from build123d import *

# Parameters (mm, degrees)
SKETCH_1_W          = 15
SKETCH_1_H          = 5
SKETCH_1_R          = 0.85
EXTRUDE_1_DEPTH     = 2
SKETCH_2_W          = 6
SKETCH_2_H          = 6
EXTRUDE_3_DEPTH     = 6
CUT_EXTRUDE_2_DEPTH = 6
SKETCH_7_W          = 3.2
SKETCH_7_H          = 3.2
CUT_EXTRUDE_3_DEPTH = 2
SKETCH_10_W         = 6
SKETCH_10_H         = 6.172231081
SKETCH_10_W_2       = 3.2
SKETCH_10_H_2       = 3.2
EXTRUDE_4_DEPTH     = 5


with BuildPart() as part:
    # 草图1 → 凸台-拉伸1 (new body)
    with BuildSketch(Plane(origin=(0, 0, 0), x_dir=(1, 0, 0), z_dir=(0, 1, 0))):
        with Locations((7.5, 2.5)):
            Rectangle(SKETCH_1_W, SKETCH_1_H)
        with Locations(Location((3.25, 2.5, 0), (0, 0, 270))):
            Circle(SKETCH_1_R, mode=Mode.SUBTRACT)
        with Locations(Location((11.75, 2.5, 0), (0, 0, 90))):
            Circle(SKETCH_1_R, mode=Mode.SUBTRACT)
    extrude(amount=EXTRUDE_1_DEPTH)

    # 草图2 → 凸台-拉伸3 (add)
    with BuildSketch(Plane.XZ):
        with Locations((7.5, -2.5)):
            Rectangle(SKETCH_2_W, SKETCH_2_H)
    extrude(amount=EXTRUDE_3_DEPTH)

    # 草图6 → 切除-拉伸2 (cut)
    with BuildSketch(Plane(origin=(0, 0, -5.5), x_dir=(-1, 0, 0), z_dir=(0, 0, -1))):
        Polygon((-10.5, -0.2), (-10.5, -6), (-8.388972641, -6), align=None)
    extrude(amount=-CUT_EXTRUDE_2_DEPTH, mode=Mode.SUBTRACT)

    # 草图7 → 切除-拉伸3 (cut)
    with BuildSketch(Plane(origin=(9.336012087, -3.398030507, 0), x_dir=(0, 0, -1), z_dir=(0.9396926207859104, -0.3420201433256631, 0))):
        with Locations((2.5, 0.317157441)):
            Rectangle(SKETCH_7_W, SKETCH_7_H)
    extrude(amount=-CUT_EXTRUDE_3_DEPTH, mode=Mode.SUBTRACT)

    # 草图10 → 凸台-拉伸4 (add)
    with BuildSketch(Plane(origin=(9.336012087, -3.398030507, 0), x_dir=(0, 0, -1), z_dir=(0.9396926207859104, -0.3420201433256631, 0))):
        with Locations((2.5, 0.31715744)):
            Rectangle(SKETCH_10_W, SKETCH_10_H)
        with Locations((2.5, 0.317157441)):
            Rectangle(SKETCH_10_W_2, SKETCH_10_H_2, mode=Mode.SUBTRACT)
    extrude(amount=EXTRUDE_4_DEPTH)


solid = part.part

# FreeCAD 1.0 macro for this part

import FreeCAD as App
import Part
import Sketcher
from FreeCAD import Vector
Q = App.Units.Quantity

doc = App.newDocument("Part")
body = doc.addObject("PartDesign::Body", "Body")

# Sketch on XZ plane
sketch1 = body.newObject("Sketcher::SketchObject", "Sketch")
sketch1.AttachmentSupport = (doc.getObject("XZ_Plane"), [""])
sketch1.MapMode = "FlatFace"
sketch1.addGeometry(Part.LineSegment(Vector(0, -5, 0), Vector(0, 0, 0)), False)
sketch1.addGeometry(Part.LineSegment(Vector(0, 0, 0), Vector(15, 0, 0)), False)
sketch1.addGeometry(Part.LineSegment(Vector(15, 0, 0), Vector(15, -5, 0)), False)
sketch1.addGeometry(Part.LineSegment(Vector(15, -5, 0), Vector(0, -5, 0)), False)
sketch1.addGeometry(Part.Circle(Vector(3.25, -2.5, 0), Vector(0, 0, 1), 0.85), False)
sketch1.addGeometry(Part.Circle(Vector(11.75, -2.5, 0), Vector(0, 0, 1), 0.85), False)
sketch1.addConstraint(Sketcher.Constraint("Coincident", 0, 2, 1, 1))
sketch1.addConstraint(Sketcher.Constraint("Coincident", 1, 2, 2, 1))
sketch1.addConstraint(Sketcher.Constraint("Coincident", 2, 2, 3, 1))
sketch1.addConstraint(Sketcher.Constraint("Coincident", 3, 2, 0, 1))
sketch1.addConstraint(Sketcher.Constraint("Vertical", 0))
sketch1.addConstraint(Sketcher.Constraint("Horizontal", 1))
sketch1.addConstraint(Sketcher.Constraint("Vertical", 2))
sketch1.addConstraint(Sketcher.Constraint("Horizontal", 3))
sketch1.addConstraint(Sketcher.Constraint("Coincident", 0, 2, -1, 1))
sketch1.addConstraint(Sketcher.Constraint("Equal", 4, 5))
sketch1.addConstraint(Sketcher.Constraint("Horizontal", 4, 3, 5, 3))
sketch1.addConstraint(Sketcher.Constraint("Diameter", 4, Q("1.7 mm")))
sketch1.addConstraint(Sketcher.Constraint("DistanceX", 1, 1, 1, 2, Q("15 mm")))
sketch1.addConstraint(Sketcher.Constraint("DistanceY", 0, 1, 0, 2, Q("5 mm")))
sketch1.addConstraint(Sketcher.Constraint("DistanceY", 4, 3, -1, 1, Q("2.5 mm")))
sketch1.addConstraint(Sketcher.Constraint("DistanceX", 4, 3, 5, 3, Q("8.5 mm")))
sketch1.addConstraint(Sketcher.Constraint("DistanceX", -1, 1, 4, 3, Q("3.25 mm")))
pad1 = body.newObject("PartDesign::Pad", "Pad")
pad1.Profile = sketch1
pad1.Length = 2
pad1.Reversed = True

# Sketch on XZ plane
sketch2 = body.newObject("Sketcher::SketchObject", "Sketch001")
sketch2.AttachmentSupport = (doc.getObject("XZ_Plane"), [""])
sketch2.MapMode = "FlatFace"
sketch2.addGeometry(Part.LineSegment(Vector(4.5, 0.5, 0), Vector(4.5, -5.5, 0)), False)
sketch2.addGeometry(Part.LineSegment(Vector(4.5, -5.5, 0), Vector(10.5, -5.5, 0)), False)
sketch2.addGeometry(Part.LineSegment(Vector(10.5, -5.5, 0), Vector(10.5, 0.5, 0)), False)
sketch2.addGeometry(Part.LineSegment(Vector(10.5, 0.5, 0), Vector(4.5, 0.5, 0)), False)
sketch2.addConstraint(Sketcher.Constraint("Coincident", 0, 2, 1, 1))
sketch2.addConstraint(Sketcher.Constraint("Coincident", 1, 2, 2, 1))
sketch2.addConstraint(Sketcher.Constraint("Coincident", 2, 2, 3, 1))
sketch2.addConstraint(Sketcher.Constraint("Coincident", 3, 2, 0, 1))
sketch2.addConstraint(Sketcher.Constraint("Vertical", 0))
sketch2.addConstraint(Sketcher.Constraint("Horizontal", 1))
sketch2.addConstraint(Sketcher.Constraint("Vertical", 2))
sketch2.addConstraint(Sketcher.Constraint("Horizontal", 3))
sketch2.addConstraint(Sketcher.Constraint("Equal", 3, 0))
sketch2.addConstraint(Sketcher.Constraint("DistanceX", 1, 1, 1, 2, Q("6 mm")))
sketch2.addConstraint(Sketcher.Constraint("DistanceX", -1, 1, 0, 2, Q("4.5 mm")))
sketch2.addConstraint(Sketcher.Constraint("DistanceY", 0, 2, -1, 1, Q("5.5 mm")))
pad2 = body.newObject("PartDesign::Pad", "Pad001")
pad2.Profile = sketch2
pad2.Length = 6

# Sketch on XY plane
sketch3 = body.newObject("Sketcher::SketchObject", "Sketch002")
sketch3.AttachmentSupport = (doc.getObject("XY_Plane"), [""])
sketch3.MapMode = "FlatFace"
sketch3.AttachmentOffset = App.Placement(Vector(0, 0, -5.5), App.Rotation())
sketch3.addGeometry(Part.LineSegment(Vector(10.5, -0.2, 0), Vector(10.5, -6, 0)), False)
sketch3.addGeometry(Part.LineSegment(Vector(10.5, -6, 0), Vector(8.388973, -6, 0)), False)
sketch3.addGeometry(Part.LineSegment(Vector(8.388973, -6, 0), Vector(10.5, -0.2, 0)), False)
sketch3.addConstraint(Sketcher.Constraint("Coincident", 0, 2, 1, 1))
sketch3.addConstraint(Sketcher.Constraint("Coincident", 1, 2, 2, 1))
sketch3.addConstraint(Sketcher.Constraint("Coincident", 2, 2, 0, 1))
sketch3.addConstraint(Sketcher.Constraint("Vertical", 0))
sketch3.addConstraint(Sketcher.Constraint("Horizontal", 1))
sketch3.addConstraint(Sketcher.Constraint("Angle", 2, Q("70 deg")))
sketch3.addConstraint(Sketcher.Constraint("DistanceY", 0, 2, 0, 1, Q("5.8 mm")))
sketch3.addConstraint(Sketcher.Constraint("DistanceY", 0, 2, -1, 1, Q("6 mm")))
sketch3.addConstraint(Sketcher.Constraint("DistanceX", -1, 1, 0, 2, Q("10.5 mm")))
pocket1 = body.newObject("PartDesign::Pocket", "Pocket")
pocket1.Profile = sketch3
pocket1.Length = 6
pocket1.Reversed = True

# Sketch on an angled plane
sketch4 = body.newObject("Sketcher::SketchObject", "Sketch003")
sketch4.Placement = App.Placement(Vector(9.336012, -3.398031, 0), App.Rotation(Vector(0, 0, -1), Vector(0.342020143, 0.939692621, 0), Vector(0.939692621, -0.342020143, 0), "ZXY"))
sketch4.addGeometry(Part.LineSegment(Vector(0.9, 1.917157, 0), Vector(0.9, -1.282843, 0)), False)
sketch4.addGeometry(Part.LineSegment(Vector(0.9, -1.282843, 0), Vector(4.1, -1.282843, 0)), False)
sketch4.addGeometry(Part.LineSegment(Vector(4.1, -1.282843, 0), Vector(4.1, 1.917157, 0)), False)
sketch4.addGeometry(Part.LineSegment(Vector(4.1, 1.917157, 0), Vector(0.9, 1.917157, 0)), False)
sketch4.addConstraint(Sketcher.Constraint("Coincident", 0, 2, 1, 1))
sketch4.addConstraint(Sketcher.Constraint("Coincident", 1, 2, 2, 1))
sketch4.addConstraint(Sketcher.Constraint("Coincident", 2, 2, 3, 1))
sketch4.addConstraint(Sketcher.Constraint("Coincident", 3, 2, 0, 1))
sketch4.addConstraint(Sketcher.Constraint("Vertical", 0))
sketch4.addConstraint(Sketcher.Constraint("Horizontal", 1))
sketch4.addConstraint(Sketcher.Constraint("Vertical", 2))
sketch4.addConstraint(Sketcher.Constraint("Horizontal", 3))
sketch4.addConstraint(Sketcher.Constraint("Equal", 3, 0))
sketch4.addConstraint(Sketcher.Constraint("DistanceX", 1, 1, 1, 2, Q("3.2 mm")))
sketch4.addConstraint(Sketcher.Constraint("DistanceX", -1, 1, 0, 2, Q("0.9 mm")))
sketch4.addConstraint(Sketcher.Constraint("DistanceY", 0, 2, -1, 1, Q("1.282843 mm")))
pocket2 = body.newObject("PartDesign::Pocket", "Pocket001")
pocket2.Profile = sketch4
pocket2.Length = 2

# Sketch on an angled plane
sketch5 = body.newObject("Sketcher::SketchObject", "Sketch004")
sketch5.Placement = App.Placement(Vector(9.336012, -3.398031, 0), App.Rotation(Vector(0, 0, -1), Vector(0.342020143, 0.939692621, 0), Vector(0.939692621, -0.342020143, 0), "ZXY"))
sketch5.addGeometry(Part.LineSegment(Vector(-0.5, 3.403273, 0), Vector(-0.5, -2.768958, 0)), False)
sketch5.addGeometry(Part.LineSegment(Vector(-0.5, -2.768958, 0), Vector(5.5, -2.768958, 0)), False)
sketch5.addGeometry(Part.LineSegment(Vector(5.5, -2.768958, 0), Vector(5.5, 3.403273, 0)), False)
sketch5.addGeometry(Part.LineSegment(Vector(5.5, 3.403273, 0), Vector(-0.5, 3.403273, 0)), False)
sketch5.addGeometry(Part.LineSegment(Vector(4.1, -1.282843, 0), Vector(0.9, -1.282843, 0)), False)
sketch5.addGeometry(Part.LineSegment(Vector(0.9, -1.282843, 0), Vector(0.9, 1.917157, 0)), False)
sketch5.addGeometry(Part.LineSegment(Vector(0.9, 1.917157, 0), Vector(4.1, 1.917157, 0)), False)
sketch5.addGeometry(Part.LineSegment(Vector(4.1, 1.917157, 0), Vector(4.1, -1.282843, 0)), False)
sketch5.addConstraint(Sketcher.Constraint("Coincident", 0, 2, 1, 1))
sketch5.addConstraint(Sketcher.Constraint("Coincident", 1, 2, 2, 1))
sketch5.addConstraint(Sketcher.Constraint("Coincident", 2, 2, 3, 1))
sketch5.addConstraint(Sketcher.Constraint("Coincident", 3, 2, 0, 1))
sketch5.addConstraint(Sketcher.Constraint("Coincident", 4, 2, 5, 1))
sketch5.addConstraint(Sketcher.Constraint("Coincident", 5, 2, 6, 1))
sketch5.addConstraint(Sketcher.Constraint("Coincident", 6, 2, 7, 1))
sketch5.addConstraint(Sketcher.Constraint("Coincident", 7, 2, 4, 1))
sketch5.addConstraint(Sketcher.Constraint("Vertical", 0))
sketch5.addConstraint(Sketcher.Constraint("Horizontal", 1))
sketch5.addConstraint(Sketcher.Constraint("Vertical", 2))
sketch5.addConstraint(Sketcher.Constraint("Horizontal", 3))
sketch5.addConstraint(Sketcher.Constraint("Horizontal", 4))
sketch5.addConstraint(Sketcher.Constraint("Vertical", 5))
sketch5.addConstraint(Sketcher.Constraint("Horizontal", 6))
sketch5.addConstraint(Sketcher.Constraint("Vertical", 7))
sketch5.addConstraint(Sketcher.Constraint("Equal", 6, 5))
sketch5.addConstraint(Sketcher.Constraint("DistanceX", 1, 1, 1, 2, Q("6 mm")))
sketch5.addConstraint(Sketcher.Constraint("DistanceX", 4, 2, 4, 1, Q("3.2 mm")))
sketch5.addConstraint(Sketcher.Constraint("DistanceX", 0, 2, -1, 1, Q("0.5 mm")))
sketch5.addConstraint(Sketcher.Constraint("DistanceX", -1, 1, 4, 2, Q("0.9 mm")))
sketch5.addConstraint(Sketcher.Constraint("DistanceY", 0, 2, 0, 1, Q("6.172231 mm")))
sketch5.addConstraint(Sketcher.Constraint("DistanceY", 0, 2, -1, 1, Q("2.768958 mm")))
sketch5.addConstraint(Sketcher.Constraint("DistanceY", 4, 2, -1, 1, Q("1.282843 mm")))
pad3 = body.newObject("PartDesign::Pad", "Pad002")
pad3.Profile = sketch5
pad3.Length = 5

doc.recompute()
